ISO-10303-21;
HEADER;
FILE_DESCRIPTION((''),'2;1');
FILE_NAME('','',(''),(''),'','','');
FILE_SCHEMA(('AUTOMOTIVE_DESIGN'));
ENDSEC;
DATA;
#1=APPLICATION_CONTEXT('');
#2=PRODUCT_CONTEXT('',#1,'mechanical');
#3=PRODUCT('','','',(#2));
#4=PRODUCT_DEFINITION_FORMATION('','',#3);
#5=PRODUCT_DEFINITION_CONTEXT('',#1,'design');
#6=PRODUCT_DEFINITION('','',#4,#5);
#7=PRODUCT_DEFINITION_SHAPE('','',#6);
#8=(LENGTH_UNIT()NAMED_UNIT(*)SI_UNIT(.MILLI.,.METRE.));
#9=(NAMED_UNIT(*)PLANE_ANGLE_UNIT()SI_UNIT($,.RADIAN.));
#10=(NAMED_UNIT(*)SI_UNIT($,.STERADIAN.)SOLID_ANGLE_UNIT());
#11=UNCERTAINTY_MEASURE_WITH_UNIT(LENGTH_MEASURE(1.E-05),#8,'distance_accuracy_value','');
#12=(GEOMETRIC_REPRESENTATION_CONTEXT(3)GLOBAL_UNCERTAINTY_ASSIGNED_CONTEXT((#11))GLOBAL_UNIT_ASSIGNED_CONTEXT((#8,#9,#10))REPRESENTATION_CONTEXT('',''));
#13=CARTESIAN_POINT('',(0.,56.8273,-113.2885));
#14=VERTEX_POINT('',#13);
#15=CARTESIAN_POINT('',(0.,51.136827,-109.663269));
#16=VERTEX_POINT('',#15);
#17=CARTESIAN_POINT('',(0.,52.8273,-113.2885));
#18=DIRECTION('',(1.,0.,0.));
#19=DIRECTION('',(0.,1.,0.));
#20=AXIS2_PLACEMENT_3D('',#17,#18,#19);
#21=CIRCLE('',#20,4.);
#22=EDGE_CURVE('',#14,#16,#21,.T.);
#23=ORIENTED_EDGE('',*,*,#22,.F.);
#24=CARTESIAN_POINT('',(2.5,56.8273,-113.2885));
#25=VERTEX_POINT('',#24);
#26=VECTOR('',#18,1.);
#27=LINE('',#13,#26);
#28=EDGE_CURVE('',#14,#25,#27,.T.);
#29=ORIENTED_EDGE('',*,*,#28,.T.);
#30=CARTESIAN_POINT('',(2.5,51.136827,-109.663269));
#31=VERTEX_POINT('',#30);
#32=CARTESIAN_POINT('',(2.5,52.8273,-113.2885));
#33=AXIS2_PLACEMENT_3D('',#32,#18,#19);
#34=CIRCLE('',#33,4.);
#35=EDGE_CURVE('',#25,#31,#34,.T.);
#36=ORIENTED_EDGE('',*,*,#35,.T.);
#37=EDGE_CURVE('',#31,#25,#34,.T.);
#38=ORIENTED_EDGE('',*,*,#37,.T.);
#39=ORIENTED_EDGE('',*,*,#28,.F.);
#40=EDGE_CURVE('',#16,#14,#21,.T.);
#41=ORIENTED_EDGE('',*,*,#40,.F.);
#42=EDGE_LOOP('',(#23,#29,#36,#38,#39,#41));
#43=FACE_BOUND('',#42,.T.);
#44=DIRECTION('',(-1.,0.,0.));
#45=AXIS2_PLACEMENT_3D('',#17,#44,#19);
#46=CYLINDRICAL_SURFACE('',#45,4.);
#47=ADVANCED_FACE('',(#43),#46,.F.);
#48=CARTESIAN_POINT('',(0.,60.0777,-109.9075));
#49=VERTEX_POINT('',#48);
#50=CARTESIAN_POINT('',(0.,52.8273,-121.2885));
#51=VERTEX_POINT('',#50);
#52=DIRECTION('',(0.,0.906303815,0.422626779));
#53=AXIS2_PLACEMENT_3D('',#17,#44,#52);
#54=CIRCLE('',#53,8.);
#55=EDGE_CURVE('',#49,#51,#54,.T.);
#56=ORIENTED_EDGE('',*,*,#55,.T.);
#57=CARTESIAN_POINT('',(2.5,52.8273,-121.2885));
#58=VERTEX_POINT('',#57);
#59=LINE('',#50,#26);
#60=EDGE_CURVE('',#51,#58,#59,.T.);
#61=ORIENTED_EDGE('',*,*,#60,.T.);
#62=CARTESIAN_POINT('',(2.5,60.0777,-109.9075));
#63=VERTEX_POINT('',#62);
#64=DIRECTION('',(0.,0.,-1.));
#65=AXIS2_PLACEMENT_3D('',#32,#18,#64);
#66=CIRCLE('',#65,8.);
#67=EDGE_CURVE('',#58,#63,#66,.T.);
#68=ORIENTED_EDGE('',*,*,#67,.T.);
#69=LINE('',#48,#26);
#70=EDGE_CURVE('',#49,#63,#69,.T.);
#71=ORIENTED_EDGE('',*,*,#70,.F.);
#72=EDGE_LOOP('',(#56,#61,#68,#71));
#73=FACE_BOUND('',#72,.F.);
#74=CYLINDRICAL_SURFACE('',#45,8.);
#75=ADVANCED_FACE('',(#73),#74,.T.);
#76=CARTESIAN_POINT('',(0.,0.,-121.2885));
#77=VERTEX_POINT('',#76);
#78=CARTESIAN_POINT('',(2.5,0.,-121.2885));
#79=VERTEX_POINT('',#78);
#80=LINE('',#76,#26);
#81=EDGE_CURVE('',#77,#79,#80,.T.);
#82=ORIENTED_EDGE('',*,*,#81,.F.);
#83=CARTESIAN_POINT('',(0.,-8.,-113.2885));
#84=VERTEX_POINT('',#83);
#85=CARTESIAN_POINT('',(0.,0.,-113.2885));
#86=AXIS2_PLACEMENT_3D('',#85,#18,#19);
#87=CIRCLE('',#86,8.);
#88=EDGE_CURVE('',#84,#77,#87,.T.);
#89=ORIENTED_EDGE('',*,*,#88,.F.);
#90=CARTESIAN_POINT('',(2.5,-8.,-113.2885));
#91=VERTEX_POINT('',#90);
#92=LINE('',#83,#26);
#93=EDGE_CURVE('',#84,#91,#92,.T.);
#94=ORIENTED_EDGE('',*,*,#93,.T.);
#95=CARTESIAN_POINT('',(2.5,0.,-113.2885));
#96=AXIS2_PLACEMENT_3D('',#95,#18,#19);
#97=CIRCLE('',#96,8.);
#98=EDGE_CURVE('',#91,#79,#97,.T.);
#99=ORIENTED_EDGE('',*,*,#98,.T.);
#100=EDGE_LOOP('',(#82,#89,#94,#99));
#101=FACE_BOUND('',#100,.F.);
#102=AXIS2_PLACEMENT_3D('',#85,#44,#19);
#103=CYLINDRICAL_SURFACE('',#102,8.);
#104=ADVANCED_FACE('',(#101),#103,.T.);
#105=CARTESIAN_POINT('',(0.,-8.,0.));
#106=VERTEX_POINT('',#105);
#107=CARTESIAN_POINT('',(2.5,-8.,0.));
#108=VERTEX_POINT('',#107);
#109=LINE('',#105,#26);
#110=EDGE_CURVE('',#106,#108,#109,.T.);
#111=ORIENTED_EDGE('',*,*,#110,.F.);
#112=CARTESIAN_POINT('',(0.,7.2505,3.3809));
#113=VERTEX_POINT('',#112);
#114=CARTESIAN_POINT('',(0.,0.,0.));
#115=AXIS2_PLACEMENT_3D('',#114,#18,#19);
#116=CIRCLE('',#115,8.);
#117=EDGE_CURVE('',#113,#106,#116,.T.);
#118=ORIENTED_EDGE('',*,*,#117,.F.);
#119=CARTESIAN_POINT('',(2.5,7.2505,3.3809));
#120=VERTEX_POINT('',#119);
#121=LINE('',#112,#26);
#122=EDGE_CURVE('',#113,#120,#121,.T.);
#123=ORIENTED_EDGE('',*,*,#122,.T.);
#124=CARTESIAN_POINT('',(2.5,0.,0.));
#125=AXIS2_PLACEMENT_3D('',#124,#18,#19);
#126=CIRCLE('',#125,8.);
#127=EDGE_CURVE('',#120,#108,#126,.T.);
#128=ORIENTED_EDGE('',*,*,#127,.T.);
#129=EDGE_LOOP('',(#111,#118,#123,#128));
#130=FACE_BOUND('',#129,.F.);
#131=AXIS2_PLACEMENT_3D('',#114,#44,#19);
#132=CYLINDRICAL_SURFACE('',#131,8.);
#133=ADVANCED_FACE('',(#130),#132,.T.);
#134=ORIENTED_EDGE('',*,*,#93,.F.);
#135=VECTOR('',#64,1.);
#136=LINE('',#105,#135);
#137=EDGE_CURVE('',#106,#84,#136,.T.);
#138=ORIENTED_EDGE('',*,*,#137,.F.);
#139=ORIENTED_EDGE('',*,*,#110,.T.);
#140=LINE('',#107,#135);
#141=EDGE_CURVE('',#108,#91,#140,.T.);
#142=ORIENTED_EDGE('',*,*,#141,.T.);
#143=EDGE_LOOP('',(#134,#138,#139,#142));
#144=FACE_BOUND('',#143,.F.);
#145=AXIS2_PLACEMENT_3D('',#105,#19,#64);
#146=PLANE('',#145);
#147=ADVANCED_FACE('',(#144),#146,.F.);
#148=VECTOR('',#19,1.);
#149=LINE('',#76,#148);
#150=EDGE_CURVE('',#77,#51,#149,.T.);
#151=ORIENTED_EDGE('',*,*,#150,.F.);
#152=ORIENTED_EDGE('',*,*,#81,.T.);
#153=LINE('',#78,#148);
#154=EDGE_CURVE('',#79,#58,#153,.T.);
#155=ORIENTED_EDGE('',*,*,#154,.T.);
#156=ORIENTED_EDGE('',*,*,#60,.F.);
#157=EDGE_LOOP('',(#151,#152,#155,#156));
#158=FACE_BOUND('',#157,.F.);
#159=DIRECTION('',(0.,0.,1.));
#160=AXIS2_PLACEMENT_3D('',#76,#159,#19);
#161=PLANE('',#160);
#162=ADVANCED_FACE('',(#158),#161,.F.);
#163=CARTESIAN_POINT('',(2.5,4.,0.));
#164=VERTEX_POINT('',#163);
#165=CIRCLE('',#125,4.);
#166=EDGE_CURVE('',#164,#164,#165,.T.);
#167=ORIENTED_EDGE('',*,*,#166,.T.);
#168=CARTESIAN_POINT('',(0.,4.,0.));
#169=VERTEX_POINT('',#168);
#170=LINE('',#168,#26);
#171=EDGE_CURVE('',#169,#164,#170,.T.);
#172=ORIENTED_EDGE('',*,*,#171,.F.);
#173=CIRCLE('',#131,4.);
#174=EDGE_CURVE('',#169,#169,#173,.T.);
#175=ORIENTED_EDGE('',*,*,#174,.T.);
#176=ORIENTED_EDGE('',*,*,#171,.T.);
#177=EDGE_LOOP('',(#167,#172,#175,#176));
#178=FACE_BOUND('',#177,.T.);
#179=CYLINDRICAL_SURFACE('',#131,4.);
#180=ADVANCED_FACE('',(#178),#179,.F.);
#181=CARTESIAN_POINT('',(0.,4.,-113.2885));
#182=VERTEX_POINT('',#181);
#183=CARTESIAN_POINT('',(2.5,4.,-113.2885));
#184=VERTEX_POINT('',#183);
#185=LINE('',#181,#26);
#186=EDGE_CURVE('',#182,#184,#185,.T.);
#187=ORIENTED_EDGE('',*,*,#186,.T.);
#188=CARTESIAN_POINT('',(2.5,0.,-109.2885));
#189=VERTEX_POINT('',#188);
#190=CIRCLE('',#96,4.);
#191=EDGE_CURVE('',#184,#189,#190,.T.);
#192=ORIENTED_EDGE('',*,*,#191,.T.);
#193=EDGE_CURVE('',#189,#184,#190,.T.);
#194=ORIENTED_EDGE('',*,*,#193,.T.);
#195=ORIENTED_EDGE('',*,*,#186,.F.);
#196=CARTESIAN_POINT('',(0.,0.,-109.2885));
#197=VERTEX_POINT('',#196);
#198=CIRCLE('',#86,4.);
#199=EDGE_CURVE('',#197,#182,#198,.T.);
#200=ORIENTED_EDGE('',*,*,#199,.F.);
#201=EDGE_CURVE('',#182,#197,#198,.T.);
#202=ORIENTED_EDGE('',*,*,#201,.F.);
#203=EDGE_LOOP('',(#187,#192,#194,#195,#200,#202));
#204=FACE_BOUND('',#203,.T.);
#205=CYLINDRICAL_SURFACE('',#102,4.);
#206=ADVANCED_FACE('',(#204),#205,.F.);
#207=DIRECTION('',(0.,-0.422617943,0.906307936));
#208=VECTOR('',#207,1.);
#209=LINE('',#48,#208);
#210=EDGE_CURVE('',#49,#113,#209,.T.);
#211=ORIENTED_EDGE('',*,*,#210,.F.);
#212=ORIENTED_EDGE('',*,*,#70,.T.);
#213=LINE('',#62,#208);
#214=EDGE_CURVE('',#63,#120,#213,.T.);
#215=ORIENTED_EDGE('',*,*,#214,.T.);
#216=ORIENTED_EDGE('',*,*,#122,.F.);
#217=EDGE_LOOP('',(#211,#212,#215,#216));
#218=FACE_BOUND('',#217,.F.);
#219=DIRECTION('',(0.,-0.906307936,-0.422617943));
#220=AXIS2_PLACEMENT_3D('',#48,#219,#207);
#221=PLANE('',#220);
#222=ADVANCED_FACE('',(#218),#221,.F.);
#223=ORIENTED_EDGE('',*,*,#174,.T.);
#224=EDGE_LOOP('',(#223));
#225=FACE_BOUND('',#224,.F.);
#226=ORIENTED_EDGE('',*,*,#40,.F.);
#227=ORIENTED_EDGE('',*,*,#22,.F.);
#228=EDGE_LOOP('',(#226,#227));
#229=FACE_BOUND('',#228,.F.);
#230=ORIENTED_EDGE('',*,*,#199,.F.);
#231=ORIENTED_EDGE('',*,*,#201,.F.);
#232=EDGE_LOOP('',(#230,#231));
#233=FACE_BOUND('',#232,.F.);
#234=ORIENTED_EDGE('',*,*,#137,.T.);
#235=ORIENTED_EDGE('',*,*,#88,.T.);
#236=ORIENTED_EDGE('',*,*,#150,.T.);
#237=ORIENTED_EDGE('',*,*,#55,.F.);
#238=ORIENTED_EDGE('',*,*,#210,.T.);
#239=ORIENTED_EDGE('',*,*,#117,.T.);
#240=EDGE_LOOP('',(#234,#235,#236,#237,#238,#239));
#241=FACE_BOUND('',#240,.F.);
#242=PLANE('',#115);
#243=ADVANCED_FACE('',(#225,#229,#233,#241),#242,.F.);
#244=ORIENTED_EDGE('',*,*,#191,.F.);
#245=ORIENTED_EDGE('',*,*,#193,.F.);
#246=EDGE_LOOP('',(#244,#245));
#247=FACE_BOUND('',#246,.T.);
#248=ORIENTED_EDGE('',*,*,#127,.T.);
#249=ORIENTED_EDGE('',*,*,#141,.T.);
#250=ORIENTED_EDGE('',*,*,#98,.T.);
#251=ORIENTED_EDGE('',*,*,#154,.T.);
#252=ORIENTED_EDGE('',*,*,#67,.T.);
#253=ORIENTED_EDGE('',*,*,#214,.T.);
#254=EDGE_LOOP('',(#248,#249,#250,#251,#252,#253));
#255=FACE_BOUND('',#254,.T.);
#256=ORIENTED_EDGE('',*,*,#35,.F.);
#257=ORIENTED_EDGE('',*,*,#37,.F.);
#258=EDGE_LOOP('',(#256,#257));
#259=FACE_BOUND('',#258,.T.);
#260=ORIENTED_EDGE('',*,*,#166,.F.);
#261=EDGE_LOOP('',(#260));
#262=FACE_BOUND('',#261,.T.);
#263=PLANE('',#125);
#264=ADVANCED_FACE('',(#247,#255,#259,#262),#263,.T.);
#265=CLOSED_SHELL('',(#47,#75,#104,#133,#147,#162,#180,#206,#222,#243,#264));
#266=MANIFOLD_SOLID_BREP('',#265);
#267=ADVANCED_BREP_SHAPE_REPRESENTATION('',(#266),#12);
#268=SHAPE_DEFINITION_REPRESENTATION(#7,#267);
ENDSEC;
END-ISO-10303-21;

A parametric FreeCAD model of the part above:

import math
import FreeCAD as App
import Part
import Sketcher
from FreeCAD import Vector
Q = App.Units.Quantity

doc = App.newDocument("Part")
body = doc.addObject("PartDesign::Body", "Body")

# Sketch on YZ plane
sketch1 = body.newObject("Sketcher::SketchObject", "Sketch")
sketch1.AttachmentSupport = (doc.getObject("YZ_Plane"), [""])
sketch1.MapMode = "FlatFace"
sketch1.addGeometry([
    Part.ArcOfCircle(Part.Circle(Vector(0, 0, 0), Vector(0, 0, 1), 8), math.radians(25), math.radians(180)),  # 0
    Part.LineSegment(Vector(-8, 0, 0), Vector(-8, -113.3, 0)),  # 1
    Part.ArcOfCircle(Part.Circle(Vector(0, -113.3, 0), Vector(0, 0, 1), 8), math.radians(180), math.radians(270)),  # 2
    Part.LineSegment(Vector(0, -121.3, 0), Vector(52.8, -121.3, 0)),  # 3
    Part.ArcOfCircle(Part.Circle(Vector(52.8, -113.3, 0), Vector(0, 0, 1), 8), math.radians(-90), math.radians(25)),  # 4
    Part.LineSegment(Vector(60.1, -109.9, 0), Vector(7.3, 3.4, 0)),  # 5
    Part.Circle(Vector(0, 0, 0), Vector(0, 0, 1), 4),  # 6
    Part.Circle(Vector(0, -113.3, 0), Vector(0, 0, 1), 4),  # 7
    Part.Circle(Vector(52.8, -113.3, 0), Vector(0, 0, 1), 4),  # 8
], False)
sketch1.addConstraint([
    Sketcher.Constraint("Tangent", 0, 2, 1, 1),
    Sketcher.Constraint("Tangent", 1, 2, 2, 1),
    Sketcher.Constraint("Tangent", 2, 2, 3, 1),
    Sketcher.Constraint("Tangent", 3, 2, 4, 1),
    Sketcher.Constraint("Tangent", 4, 2, 5, 1),
    Sketcher.Constraint("Tangent", 5, 2, 0, 1),
    Sketcher.Constraint("Vertical", 1),
    Sketcher.Constraint("Horizontal", 3),
    Sketcher.Constraint("Coincident", 0, 3, -1, 1),
    Sketcher.Constraint("Coincident", 6, 3, -1, 1),
    Sketcher.Constraint("Coincident", 7, 3, 2, 3),
    Sketcher.Constraint("Coincident", 8, 3, 4, 3),
    Sketcher.Constraint("Equal", 0, 2),
    Sketcher.Constraint("Equal", 2, 4),
    Sketcher.Constraint("Equal", 6, 7),
    Sketcher.Constraint("Equal", 7, 8),
    Sketcher.Constraint("Diameter", 6, Q("8 mm")),
    Sketcher.Constraint("Radius", 0, Q("8 mm")),
    Sketcher.Constraint("Distance", 5, Q("125 mm")),
    Sketcher.Constraint("Angle", 5, Q("115 deg")),
])
pad1 = body.newObject("PartDesign::Pad", "Pad")
pad1.Profile = sketch1
pad1.Length = 2.5

doc.recompute()
